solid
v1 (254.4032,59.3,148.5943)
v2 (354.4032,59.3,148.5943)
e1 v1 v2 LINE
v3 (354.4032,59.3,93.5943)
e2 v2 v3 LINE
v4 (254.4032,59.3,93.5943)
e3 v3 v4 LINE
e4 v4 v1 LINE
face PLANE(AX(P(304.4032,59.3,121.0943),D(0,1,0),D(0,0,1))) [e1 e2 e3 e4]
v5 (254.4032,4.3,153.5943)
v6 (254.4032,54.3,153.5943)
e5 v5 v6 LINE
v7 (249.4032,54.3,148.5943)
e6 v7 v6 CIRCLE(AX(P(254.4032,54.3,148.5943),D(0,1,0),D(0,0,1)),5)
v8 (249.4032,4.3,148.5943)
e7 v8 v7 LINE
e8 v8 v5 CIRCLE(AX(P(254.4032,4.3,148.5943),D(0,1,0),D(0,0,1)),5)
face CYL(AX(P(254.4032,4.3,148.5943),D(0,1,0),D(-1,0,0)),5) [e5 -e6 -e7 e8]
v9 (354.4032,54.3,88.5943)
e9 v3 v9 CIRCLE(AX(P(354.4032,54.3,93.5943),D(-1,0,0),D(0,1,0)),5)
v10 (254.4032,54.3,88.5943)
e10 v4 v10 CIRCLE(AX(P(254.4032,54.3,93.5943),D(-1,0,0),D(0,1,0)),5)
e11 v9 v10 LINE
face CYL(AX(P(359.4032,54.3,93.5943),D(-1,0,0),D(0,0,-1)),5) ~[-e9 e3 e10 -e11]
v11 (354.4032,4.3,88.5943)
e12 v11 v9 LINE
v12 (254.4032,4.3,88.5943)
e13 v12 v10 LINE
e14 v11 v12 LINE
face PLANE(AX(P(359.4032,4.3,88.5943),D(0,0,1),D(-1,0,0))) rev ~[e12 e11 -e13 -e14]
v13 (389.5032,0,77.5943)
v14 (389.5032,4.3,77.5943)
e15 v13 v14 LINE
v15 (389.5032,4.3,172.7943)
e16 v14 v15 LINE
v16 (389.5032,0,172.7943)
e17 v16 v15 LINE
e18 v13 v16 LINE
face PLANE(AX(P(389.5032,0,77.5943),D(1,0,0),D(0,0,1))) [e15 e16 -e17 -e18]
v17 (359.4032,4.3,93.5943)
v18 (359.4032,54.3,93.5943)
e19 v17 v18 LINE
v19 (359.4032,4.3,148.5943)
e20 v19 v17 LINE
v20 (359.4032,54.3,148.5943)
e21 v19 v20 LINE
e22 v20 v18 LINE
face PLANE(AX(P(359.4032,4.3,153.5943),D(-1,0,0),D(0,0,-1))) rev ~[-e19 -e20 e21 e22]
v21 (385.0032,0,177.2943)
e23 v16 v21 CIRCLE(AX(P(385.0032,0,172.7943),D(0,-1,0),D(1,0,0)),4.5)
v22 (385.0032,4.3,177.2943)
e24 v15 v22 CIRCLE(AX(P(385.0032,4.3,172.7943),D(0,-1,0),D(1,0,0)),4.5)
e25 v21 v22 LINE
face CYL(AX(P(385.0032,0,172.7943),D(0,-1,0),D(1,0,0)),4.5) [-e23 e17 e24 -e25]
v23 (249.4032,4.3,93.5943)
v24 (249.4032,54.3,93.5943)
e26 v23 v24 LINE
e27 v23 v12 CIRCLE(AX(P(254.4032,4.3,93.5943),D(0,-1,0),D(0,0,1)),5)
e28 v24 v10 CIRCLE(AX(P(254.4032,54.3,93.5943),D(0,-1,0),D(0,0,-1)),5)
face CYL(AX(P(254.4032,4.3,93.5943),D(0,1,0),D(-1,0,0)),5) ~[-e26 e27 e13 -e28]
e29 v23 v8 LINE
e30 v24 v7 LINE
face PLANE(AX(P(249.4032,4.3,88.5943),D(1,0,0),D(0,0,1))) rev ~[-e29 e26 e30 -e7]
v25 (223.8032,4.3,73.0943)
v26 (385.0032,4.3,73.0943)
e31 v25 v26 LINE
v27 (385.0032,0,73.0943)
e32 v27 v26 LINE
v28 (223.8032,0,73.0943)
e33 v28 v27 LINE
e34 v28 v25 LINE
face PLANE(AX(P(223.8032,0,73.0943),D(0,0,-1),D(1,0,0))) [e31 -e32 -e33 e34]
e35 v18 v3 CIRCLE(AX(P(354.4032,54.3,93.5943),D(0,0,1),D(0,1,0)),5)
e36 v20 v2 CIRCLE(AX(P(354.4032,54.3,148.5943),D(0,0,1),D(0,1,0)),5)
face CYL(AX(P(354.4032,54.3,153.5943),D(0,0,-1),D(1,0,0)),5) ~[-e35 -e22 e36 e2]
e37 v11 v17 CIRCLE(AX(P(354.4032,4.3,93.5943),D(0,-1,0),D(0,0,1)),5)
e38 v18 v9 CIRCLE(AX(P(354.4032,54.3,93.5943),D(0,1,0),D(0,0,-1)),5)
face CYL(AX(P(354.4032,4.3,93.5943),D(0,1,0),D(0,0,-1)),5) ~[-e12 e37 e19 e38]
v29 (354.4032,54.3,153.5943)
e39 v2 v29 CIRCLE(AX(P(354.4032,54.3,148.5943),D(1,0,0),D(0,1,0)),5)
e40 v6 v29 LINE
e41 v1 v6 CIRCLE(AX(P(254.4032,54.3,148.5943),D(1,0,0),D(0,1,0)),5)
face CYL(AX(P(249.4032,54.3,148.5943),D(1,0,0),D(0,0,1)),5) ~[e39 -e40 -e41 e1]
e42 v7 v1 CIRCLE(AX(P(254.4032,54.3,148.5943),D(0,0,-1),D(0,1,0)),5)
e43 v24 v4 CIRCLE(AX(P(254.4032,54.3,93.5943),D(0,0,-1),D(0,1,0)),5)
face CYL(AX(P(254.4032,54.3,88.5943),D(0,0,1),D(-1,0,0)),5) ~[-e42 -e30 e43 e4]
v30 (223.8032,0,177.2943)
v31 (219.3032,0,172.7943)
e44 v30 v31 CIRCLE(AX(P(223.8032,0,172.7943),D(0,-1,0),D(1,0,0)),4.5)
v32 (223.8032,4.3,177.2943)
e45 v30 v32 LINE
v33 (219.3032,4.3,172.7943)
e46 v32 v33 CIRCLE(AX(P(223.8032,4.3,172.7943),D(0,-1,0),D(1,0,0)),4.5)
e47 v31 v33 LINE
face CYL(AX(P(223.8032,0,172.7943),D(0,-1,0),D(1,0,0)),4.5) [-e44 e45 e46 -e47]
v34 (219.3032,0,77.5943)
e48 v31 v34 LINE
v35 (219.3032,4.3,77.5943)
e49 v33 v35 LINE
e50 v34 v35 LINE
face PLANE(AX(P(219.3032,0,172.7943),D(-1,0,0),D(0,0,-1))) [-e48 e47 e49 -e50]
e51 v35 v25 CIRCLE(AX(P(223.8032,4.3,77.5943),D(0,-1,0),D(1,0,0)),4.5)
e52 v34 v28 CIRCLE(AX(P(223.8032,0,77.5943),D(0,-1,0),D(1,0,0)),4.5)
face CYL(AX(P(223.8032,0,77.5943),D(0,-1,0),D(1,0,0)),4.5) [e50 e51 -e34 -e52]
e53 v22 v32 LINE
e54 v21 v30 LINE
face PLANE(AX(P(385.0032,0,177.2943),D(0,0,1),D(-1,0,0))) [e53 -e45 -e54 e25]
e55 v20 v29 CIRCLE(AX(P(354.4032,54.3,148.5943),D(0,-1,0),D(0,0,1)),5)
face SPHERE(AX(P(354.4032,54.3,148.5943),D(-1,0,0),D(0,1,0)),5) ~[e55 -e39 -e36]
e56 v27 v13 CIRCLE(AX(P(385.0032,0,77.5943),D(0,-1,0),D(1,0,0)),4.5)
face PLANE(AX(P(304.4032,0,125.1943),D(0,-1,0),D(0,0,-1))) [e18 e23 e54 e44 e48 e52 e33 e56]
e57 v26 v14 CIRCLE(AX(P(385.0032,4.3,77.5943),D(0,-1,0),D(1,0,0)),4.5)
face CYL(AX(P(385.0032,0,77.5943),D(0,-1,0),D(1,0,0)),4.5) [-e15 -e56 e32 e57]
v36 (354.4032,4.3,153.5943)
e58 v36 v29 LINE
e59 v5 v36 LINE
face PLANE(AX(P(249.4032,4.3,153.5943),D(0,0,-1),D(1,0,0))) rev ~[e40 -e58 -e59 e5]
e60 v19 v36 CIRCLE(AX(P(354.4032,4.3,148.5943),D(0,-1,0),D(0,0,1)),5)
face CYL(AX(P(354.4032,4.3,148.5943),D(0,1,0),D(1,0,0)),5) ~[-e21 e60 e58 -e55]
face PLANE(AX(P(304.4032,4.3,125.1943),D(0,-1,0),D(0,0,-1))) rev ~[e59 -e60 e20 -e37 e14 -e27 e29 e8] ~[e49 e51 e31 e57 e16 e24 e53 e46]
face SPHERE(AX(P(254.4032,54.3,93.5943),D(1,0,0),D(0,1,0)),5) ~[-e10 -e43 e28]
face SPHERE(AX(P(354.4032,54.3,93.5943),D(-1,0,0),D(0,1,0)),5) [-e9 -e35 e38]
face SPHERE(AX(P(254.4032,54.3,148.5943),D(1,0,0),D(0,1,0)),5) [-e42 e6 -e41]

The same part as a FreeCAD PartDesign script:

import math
import FreeCAD as App
import Part
import Sketcher
from FreeCAD import Vector


def edges_at(feature, points):
    """Names of the edges that pass closest to the given points."""
    edges = feature.Shape.Edges
    near = lambda p: min(range(len(edges)), key=lambda i: edges[i].distToShape(Part.Vertex(*p))[0])
    return sorted({f"Edge{near(p) + 1}" for p in points})


def add_polygon(sketch, points):
    """Adds a closed chain of lines whose ends are joined by coincident constraints."""
    first, n = sketch.GeometryCount, len(points)
    for a, b in zip(points, points[1:] + points[:1]):
        sketch.addGeometry(Part.LineSegment(App.Vector(*a, 0), App.Vector(*b, 0)), False)
    for i in range(n):
        sketch.addConstraint(Sketcher.Constraint("Coincident", first + i, 2, first + (i + 1) % n, 1))

doc = App.newDocument("Part")
body = doc.addObject("PartDesign::Body", "Body")

# Sketch on XZ plane
sketch1 = body.newObject("Sketcher::SketchObject", "Sketch")
sketch1.AttachmentSupport = (doc.getObject("XZ_Plane"), [""])
sketch1.MapMode = "FlatFace"
sketch1.addGeometry(Part.LineSegment(Vector(223.8, 73.1, 0), Vector(385, 73.1, 0)), False)
sketch1.addGeometry(Part.ArcOfCircle(Part.Circle(Vector(385, 77.6, 0), Vector(0, 0, 1), 4.5), math.radians(-90), math.radians(0)), False)
sketch1.addGeometry(Part.LineSegment(Vector(389.5, 77.6, 0), Vector(389.5, 172.8, 0)), False)
sketch1.addGeometry(Part.ArcOfCircle(Part.Circle(Vector(385, 172.8, 0), Vector(0, 0, 1), 4.5), math.radians(0), math.radians(90)), False)
sketch1.addGeometry(Part.LineSegment(Vector(385, 177.3, 0), Vector(223.8, 177.3, 0)), False)
sketch1.addGeometry(Part.ArcOfCircle(Part.Circle(Vector(223.8, 172.8, 0), Vector(0, 0, 1), 4.5), math.radians(90), math.radians(180)), False)
sketch1.addGeometry(Part.LineSegment(Vector(219.3, 172.8, 0), Vector(219.3, 77.6, 0)), False)
sketch1.addGeometry(Part.ArcOfCircle(Part.Circle(Vector(223.8, 77.6, 0), Vector(0, 0, 1), 4.5), math.radians(180), math.radians(270)), False)
sketch1.addConstraint(Sketcher.Constraint("Tangent", 0, 2, 1, 1))
sketch1.addConstraint(Sketcher.Constraint("Tangent", 1, 2, 2, 1))
sketch1.addConstraint(Sketcher.Constraint("Tangent", 2, 2, 3, 1))
sketch1.addConstraint(Sketcher.Constraint("Tangent", 3, 2, 4, 1))
sketch1.addConstraint(Sketcher.Constraint("Tangent", 4, 2, 5, 1))
sketch1.addConstraint(Sketcher.Constraint("Tangent", 5, 2, 6, 1))
sketch1.addConstraint(Sketcher.Constraint("Tangent", 6, 2, 7, 1))
sketch1.addConstraint(Sketcher.Constraint("Tangent", 7, 2, 0, 1))
sketch1.addConstraint(Sketcher.Constraint("Horizontal", 0))
sketch1.addConstraint(Sketcher.Constraint("Vertical", 2))
sketch1.addConstraint(Sketcher.Constraint("Horizontal", 4))
sketch1.addConstraint(Sketcher.Constraint("Vertical", 6))
sketch1.addConstraint(Sketcher.Constraint("Equal", 1, 3))
sketch1.addConstraint(Sketcher.Constraint("Equal", 3, 5))
sketch1.addConstraint(Sketcher.Constraint("Equal", 5, 7))
sketch1.addConstraint(Sketcher.Constraint("Radius", 1, 4.5))
sketch1.addConstraint(Sketcher.Constraint("DistanceX", 0, 1, 0, 2, 161.2))
sketch1.addConstraint(Sketcher.Constraint("DistanceY", 2, 1, 2, 2, 95.2))
sketch1.addConstraint(Sketcher.Constraint("DistanceX", -1, 1, 1, 3, 385.0032))
sketch1.addConstraint(Sketcher.Constraint("DistanceY", -1, 1, 1, 3, 77.5943))
pad1 = body.newObject("PartDesign::Pad", "Pad")
pad1.Profile = sketch1
pad1.Length = 4.3
pad1.Reversed = True

# Sketch on XZ plane
sketch2 = body.newObject("Sketcher::SketchObject", "Sketch001")
sketch2.AttachmentSupport = (doc.getObject("XZ_Plane"), [""])
sketch2.MapMode = "FlatFace"
sketch2.AttachmentOffset = App.Placement(Vector(0, 0, -4.3), App.Rotation())
add_polygon(sketch2, [(249, 89), (249, 154), (359, 154), (359, 89)])  # lines 0-3
sketch2.addConstraint(Sketcher.Constraint("Vertical", 0))
sketch2.addConstraint(Sketcher.Constraint("Horizontal", 1))
sketch2.addConstraint(Sketcher.Constraint("Vertical", 2))
sketch2.addConstraint(Sketcher.Constraint("Horizontal", 3))
sketch2.addConstraint(Sketcher.Constraint("DistanceX", 1, 1, 1, 2, 110.0))
sketch2.addConstraint(Sketcher.Constraint("DistanceY", 0, 1, 0, 2, 65.0))
sketch2.addConstraint(Sketcher.Constraint("DistanceX", -1, 1, 0, 2, 249.4032))
sketch2.addConstraint(Sketcher.Constraint("DistanceY", -1, 1, 0, 2, 153.5943))
pad2 = body.newObject("PartDesign::Pad", "Pad001")
pad2.Profile = sketch2
pad2.Length = 55
pad2.Reversed = True
doc.recompute()

fillet = body.newObject("PartDesign::Fillet", "Fillet")
fillet.Base = (pad2, edges_at(pad2, [
    (304.403, 59.3, 153.594),
    (304.403, 59.3, 88.594),
    (359.403, 59.3, 121.094),
    (249.403, 59.3, 121.094),
    (359.403, 31.8, 153.594),
    (359.403, 31.8, 88.594),
    (249.403, 31.8, 153.594),
    (249.403, 31.8, 88.594),
]))
fillet.Radius = 5

doc.recompute()
